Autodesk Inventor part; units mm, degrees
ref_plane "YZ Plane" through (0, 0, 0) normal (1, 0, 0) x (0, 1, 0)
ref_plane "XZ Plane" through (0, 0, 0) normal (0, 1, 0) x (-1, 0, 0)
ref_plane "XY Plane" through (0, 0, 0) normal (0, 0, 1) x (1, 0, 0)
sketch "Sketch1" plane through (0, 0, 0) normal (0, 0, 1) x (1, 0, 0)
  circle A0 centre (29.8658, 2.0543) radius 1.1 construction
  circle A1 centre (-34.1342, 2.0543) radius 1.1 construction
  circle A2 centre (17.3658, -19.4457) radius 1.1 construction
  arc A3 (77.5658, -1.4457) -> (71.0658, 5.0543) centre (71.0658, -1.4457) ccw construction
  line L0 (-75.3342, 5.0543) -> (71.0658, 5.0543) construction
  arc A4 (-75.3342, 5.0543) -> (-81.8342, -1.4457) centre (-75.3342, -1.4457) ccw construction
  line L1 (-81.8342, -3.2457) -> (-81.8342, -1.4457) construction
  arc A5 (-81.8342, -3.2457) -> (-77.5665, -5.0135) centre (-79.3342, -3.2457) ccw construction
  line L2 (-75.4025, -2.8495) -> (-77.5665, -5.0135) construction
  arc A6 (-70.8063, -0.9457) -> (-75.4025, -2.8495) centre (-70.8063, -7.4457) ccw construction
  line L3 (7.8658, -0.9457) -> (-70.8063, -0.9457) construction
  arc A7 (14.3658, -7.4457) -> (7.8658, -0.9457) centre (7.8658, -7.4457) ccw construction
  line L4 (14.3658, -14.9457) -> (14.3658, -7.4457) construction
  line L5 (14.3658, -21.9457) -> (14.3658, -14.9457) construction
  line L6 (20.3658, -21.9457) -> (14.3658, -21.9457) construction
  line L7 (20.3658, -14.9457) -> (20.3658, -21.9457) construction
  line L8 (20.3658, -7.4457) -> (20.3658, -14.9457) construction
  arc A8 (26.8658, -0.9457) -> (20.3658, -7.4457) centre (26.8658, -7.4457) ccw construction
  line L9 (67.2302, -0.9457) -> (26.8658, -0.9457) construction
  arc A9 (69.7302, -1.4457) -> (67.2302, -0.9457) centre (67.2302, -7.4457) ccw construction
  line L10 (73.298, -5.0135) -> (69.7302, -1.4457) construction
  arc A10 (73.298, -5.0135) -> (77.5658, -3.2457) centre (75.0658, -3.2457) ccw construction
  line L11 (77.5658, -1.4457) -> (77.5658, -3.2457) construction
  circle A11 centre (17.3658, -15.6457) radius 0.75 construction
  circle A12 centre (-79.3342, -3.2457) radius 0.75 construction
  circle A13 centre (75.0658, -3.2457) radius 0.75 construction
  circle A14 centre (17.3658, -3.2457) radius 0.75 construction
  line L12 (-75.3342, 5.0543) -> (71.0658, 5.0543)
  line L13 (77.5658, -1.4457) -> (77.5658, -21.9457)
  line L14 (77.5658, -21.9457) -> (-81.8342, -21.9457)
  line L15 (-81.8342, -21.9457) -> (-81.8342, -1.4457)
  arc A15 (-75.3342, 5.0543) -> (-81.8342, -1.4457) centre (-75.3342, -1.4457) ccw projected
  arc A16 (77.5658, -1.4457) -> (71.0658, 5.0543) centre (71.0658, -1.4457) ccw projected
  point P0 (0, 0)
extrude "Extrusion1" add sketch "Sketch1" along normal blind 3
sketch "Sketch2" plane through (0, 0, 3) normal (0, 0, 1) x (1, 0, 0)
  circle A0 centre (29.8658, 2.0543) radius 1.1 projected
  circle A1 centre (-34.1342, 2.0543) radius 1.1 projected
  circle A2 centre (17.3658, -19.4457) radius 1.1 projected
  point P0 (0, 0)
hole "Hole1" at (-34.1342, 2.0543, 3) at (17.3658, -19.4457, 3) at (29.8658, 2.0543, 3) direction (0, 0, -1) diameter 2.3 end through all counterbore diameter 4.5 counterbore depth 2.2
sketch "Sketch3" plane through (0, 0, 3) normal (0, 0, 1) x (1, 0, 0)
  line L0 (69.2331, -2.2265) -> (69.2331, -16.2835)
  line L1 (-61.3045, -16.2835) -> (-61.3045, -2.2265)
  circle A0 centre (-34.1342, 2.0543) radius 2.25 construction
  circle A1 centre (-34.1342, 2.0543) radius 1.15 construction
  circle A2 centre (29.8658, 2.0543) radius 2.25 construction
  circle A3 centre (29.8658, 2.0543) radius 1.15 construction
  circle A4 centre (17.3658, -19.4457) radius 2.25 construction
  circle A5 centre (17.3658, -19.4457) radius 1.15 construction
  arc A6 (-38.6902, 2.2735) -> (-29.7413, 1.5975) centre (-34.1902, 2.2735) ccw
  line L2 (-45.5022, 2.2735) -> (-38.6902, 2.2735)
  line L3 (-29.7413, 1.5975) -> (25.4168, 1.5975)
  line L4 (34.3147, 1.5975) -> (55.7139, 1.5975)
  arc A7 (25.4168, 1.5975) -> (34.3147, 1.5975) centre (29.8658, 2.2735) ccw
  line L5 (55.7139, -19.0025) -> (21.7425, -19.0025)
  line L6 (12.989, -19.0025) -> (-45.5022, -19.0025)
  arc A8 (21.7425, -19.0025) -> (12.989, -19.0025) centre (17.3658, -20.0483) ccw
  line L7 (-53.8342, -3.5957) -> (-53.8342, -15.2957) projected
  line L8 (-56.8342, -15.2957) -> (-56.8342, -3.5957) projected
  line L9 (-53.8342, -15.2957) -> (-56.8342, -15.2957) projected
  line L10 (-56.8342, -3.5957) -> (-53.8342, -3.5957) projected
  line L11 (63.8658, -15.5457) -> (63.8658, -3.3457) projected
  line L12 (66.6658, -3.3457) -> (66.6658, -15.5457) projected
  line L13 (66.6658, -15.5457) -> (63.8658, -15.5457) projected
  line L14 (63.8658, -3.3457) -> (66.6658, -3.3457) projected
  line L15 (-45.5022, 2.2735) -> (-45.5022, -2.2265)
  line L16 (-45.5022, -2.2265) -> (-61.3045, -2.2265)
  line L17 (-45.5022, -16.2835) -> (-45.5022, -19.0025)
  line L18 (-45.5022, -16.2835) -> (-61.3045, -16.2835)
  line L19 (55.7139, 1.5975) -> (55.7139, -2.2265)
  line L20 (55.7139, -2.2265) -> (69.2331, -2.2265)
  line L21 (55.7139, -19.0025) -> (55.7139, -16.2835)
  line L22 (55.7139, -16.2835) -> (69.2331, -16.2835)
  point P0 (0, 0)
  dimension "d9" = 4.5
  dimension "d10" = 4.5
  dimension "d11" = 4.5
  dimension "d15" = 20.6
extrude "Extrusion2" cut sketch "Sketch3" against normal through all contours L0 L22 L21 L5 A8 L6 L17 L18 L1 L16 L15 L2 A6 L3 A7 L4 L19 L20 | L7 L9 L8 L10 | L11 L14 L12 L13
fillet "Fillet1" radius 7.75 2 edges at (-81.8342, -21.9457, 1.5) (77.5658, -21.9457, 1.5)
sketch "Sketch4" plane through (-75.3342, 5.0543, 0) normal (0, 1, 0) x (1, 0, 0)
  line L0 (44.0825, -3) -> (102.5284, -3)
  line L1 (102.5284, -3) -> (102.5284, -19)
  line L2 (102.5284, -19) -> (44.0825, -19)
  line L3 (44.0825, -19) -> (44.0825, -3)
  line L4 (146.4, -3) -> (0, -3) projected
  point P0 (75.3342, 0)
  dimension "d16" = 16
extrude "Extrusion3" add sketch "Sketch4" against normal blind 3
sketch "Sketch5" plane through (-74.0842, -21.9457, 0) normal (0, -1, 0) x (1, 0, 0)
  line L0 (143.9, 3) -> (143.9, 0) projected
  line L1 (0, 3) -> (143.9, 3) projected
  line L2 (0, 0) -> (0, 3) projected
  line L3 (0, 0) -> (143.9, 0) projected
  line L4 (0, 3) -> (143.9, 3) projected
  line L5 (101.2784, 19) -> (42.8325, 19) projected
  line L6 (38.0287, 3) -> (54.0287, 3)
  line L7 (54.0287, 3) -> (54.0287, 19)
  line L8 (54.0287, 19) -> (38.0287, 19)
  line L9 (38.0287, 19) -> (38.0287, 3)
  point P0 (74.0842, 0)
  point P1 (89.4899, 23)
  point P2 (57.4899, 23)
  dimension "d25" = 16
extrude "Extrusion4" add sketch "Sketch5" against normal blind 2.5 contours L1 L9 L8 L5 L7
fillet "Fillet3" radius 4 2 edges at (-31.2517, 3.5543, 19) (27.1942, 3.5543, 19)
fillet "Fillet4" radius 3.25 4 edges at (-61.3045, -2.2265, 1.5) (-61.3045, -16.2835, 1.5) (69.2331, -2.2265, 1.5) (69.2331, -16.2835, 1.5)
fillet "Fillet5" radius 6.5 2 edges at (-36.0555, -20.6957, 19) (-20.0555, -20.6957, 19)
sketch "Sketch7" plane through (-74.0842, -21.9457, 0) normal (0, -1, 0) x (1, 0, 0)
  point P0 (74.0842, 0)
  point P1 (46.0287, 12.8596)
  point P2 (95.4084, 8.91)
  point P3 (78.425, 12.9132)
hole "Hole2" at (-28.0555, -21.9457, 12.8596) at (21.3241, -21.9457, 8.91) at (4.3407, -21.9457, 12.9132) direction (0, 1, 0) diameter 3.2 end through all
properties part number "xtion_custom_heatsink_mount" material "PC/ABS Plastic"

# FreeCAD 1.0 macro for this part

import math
import FreeCAD as App
import Part
import Sketcher
from FreeCAD import Vector
Q = App.Units.Quantity


def edges_at(feature, points):
    """Names of the edges that pass closest to the given points."""
    edges = feature.Shape.Edges
    near = lambda p: min(range(len(edges)), key=lambda i: edges[i].distToShape(Part.Vertex(*p))[0])
    return sorted({f"Edge{near(p) + 1}" for p in points})

doc = App.newDocument("Part")
body = doc.addObject("PartDesign::Body", "Body")

sketch1 = doc.addObject("Sketcher::SketchObject", "Sketch")
body.addObject(sketch1)
sketch1.AttachmentSupport = (doc.XY_Plane, [""])
sketch1.MapMode = "FlatFace"
sketch1.addGeometry(Part.LineSegment(Vector(71, 5, 0), Vector(-75, 5, 0)), False)
sketch1.addGeometry(Part.ArcOfCircle(Part.Circle(Vector(-75, -1, 0), Vector(0, 0, 1), 6), math.radians(90), math.radians(180)), False)
sketch1.addGeometry(Part.LineSegment(Vector(-82, -1, 0), Vector(-82, -22, 0)), False)
sketch1.addGeometry(Part.LineSegment(Vector(-82, -22, 0), Vector(78, -22, 0)), False)
sketch1.addGeometry(Part.LineSegment(Vector(78, -22, 0), Vector(78, -1, 0)), False)
sketch1.addGeometry(Part.ArcOfCircle(Part.Circle(Vector(71, -1, 0), Vector(0, 0, 1), 6), math.radians(0), math.radians(90)), False)
sketch1.addConstraint(Sketcher.Constraint("Tangent", 0, 2, 1, 1))
sketch1.addConstraint(Sketcher.Constraint("Tangent", 1, 2, 2, 1))
sketch1.addConstraint(Sketcher.Constraint("Coincident", 2, 2, 3, 1))
sketch1.addConstraint(Sketcher.Constraint("Coincident", 3, 2, 4, 1))
sketch1.addConstraint(Sketcher.Constraint("Tangent", 4, 2, 5, 1))
sketch1.addConstraint(Sketcher.Constraint("Tangent", 5, 2, 0, 1))
sketch1.addConstraint(Sketcher.Constraint("Horizontal", 0))
sketch1.addConstraint(Sketcher.Constraint("Vertical", 2))
sketch1.addConstraint(Sketcher.Constraint("Horizontal", 3))
sketch1.addConstraint(Sketcher.Constraint("Vertical", 4))
sketch1.addConstraint(Sketcher.Constraint("Equal", 1, 5))
sketch1.addConstraint(Sketcher.Constraint("Radius", 1, Q("6.5 mm")))
sketch1.addConstraint(Sketcher.Constraint("DistanceX", 0, 2, 0, 1, Q("146.4 mm")))
sketch1.addConstraint(Sketcher.Constraint("DistanceY", 2, 2, 2, 1, Q("20.5 mm")))
sketch1.addConstraint(Sketcher.Constraint("DistanceX", 1, 3, -1, 1, Q("75.3342 mm")))
sketch1.addConstraint(Sketcher.Constraint("DistanceY", 1, 3, -1, 1, Q("1.4457 mm")))
pad1 = doc.addObject("PartDesign::Pad", "Pad")
body.addObject(pad1)
pad1.Profile = sketch1
pad1.Length = 3

sketch2 = doc.addObject("Sketcher::SketchObject", "Sketch001")
body.addObject(sketch2)
sketch2.AttachmentSupport = (doc.XY_Plane, [""])
sketch2.MapMode = "FlatFace"
sketch2.AttachmentOffset = App.Placement(Vector(0, 0, 3), App.Rotation())
sketch2.addGeometry(Part.Circle(Vector(-34.1, 2.1, 0), Vector(0, 0, 1), 1.1), False)
sketch2.addGeometry(Part.Circle(Vector(17.4, -19.4, 0), Vector(0, 0, 1), 1.1), False)
sketch2.addGeometry(Part.Circle(Vector(29.9, 2.1, 0), Vector(0, 0, 1), 1.1), False)
sketch2.addConstraint(Sketcher.Constraint("Equal", 0, 1))
sketch2.addConstraint(Sketcher.Constraint("Equal", 1, 2))
sketch2.addConstraint(Sketcher.Constraint("Horizontal", 0, 3, 2, 3))
sketch2.addConstraint(Sketcher.Constraint("Diameter", 0, Q("2.3 mm")))
sketch2.addConstraint(Sketcher.Constraint("DistanceX", 0, 3, 2, 3, Q("64 mm")))
sketch2.addConstraint(Sketcher.Constraint("DistanceX", 0, 3, 1, 3, Q("51.5 mm")))
sketch2.addConstraint(Sketcher.Constraint("DistanceY", 1, 3, 0, 3, Q("21.5 mm")))
sketch2.addConstraint(Sketcher.Constraint("DistanceX", 0, 3, -1, 1, Q("34.1342 mm")))
sketch2.addConstraint(Sketcher.Constraint("DistanceY", -1, 1, 0, 3, Q("2.0543 mm")))
doc.recompute()
hole = doc.addObject("PartDesign::Hole", "Hole")
body.addObject(hole)
hole.Profile = sketch2
hole.ThreadType = "None"
hole.Diameter = 2.3
hole.DepthType = "ThroughAll"
hole.HoleCutType = "Counterbore"
hole.HoleCutDiameter = 4.5
hole.HoleCutDepth = 2.2

sketch3 = doc.addObject("Sketcher::SketchObject", "Sketch002")
body.addObject(sketch3)
sketch3.AttachmentSupport = (doc.XY_Plane, [""])
sketch3.MapMode = "FlatFace"
sketch3.AttachmentOffset = App.Placement(Vector(0, 0, 3), App.Rotation())
sketch3.addGeometry(Part.LineSegment(Vector(69.2, -16.3, 0), Vector(69.2, -2.2, 0)), False)
sketch3.addGeometry(Part.LineSegment(Vector(69.2, -2.2, 0), Vector(55.7, -2.2, 0)), False)
sketch3.addGeometry(Part.LineSegment(Vector(55.7, -2.2, 0), Vector(55.7, 1.6, 0)), False)
sketch3.addGeometry(Part.LineSegment(Vector(55.7, 1.6, 0), Vector(34.3, 1.6, 0)), False)
sketch3.addGeometry(Part.ArcOfCircle(Part.Circle(Vector(29.9, 2.3, 0), Vector(0, 0, 1), 4.5), math.radians(-171), math.radians(-9)), False)
sketch3.addGeometry(Part.LineSegment(Vector(25.4, 1.6, 0), Vector(-29.7, 1.6, 0)), False)
sketch3.addGeometry(Part.ArcOfCircle(Part.Circle(Vector(-34.2, 2.3, 0), Vector(0, 0, 1), 4.5), math.radians(180), math.radians(351)), False)
sketch3.addGeometry(Part.LineSegment(Vector(-38.7, 2.3, 0), Vector(-45.5, 2.3, 0)), False)
sketch3.addGeometry(Part.LineSegment(Vector(-45.5, 2.3, 0), Vector(-45.5, -2.2, 0)), False)
sketch3.addGeometry(Part.LineSegment(Vector(-45.5, -2.2, 0), Vector(-61.3, -2.2, 0)), False)
sketch3.addGeometry(Part.LineSegment(Vector(-61.3, -2.2, 0), Vector(-61.3, -16.3, 0)), False)
sketch3.addGeometry(Part.LineSegment(Vector(-61.3, -16.3, 0), Vector(-45.5, -16.3, 0)), False)
sketch3.addGeometry(Part.LineSegment(Vector(-45.5, -16.3, 0), Vector(-45.5, -19, 0)), False)
sketch3.addGeometry(Part.LineSegment(Vector(-45.5, -19, 0), Vector(13, -19, 0)), False)
sketch3.addGeometry(Part.ArcOfCircle(Part.Circle(Vector(17.4, -20, 0), Vector(0, 0, 1), 4.5), math.radians(13), math.radians(167)), False)
sketch3.addGeometry(Part.LineSegment(Vector(21.7, -19, 0), Vector(55.7, -19, 0)), False)
sketch3.addGeometry(Part.LineSegment(Vector(55.7, -19, 0), Vector(55.7, -16.3, 0)), False)
sketch3.addGeometry(Part.LineSegment(Vector(55.7, -16.3, 0), Vector(69.2, -16.3, 0)), False)
sketch3.addConstraint(Sketcher.Constraint("Coincident", 0, 2, 1, 1))
sketch3.addConstraint(Sketcher.Constraint("Coincident", 1, 2, 2, 1))
sketch3.addConstraint(Sketcher.Constraint("Coincident", 2, 2, 3, 1))
sketch3.addConstraint(Sketcher.Constraint("Coincident", 3, 2, 4, 2))
sketch3.addConstraint(Sketcher.Constraint("Coincident", 4, 1, 5, 1))
sketch3.addConstraint(Sketcher.Constraint("Coincident", 5, 2, 6, 2))
sketch3.addConstraint(Sketcher.Constraint("Coincident", 6, 1, 7, 1))
sketch3.addConstraint(Sketcher.Constraint("Coincident", 7, 2, 8, 1))
sketch3.addConstraint(Sketcher.Constraint("Coincident", 8, 2, 9, 1))
sketch3.addConstraint(Sketcher.Constraint("Coincident", 9, 2, 10, 1))
sketch3.addConstraint(Sketcher.Constraint("Coincident", 10, 2, 11, 1))
sketch3.addConstraint(Sketcher.Constraint("Coincident", 11, 2, 12, 1))
sketch3.addConstraint(Sketcher.Constraint("Coincident", 12, 2, 13, 1))
sketch3.addConstraint(Sketcher.Constraint("Coincident", 13, 2, 14, 2))
sketch3.addConstraint(Sketcher.Constraint("Coincident", 14, 1, 15, 1))
sketch3.addConstraint(Sketcher.Constraint("Coincident", 15, 2, 16, 1))
sketch3.addConstraint(Sketcher.Constraint("Coincident", 16, 2, 17, 1))
sketch3.addConstraint(Sketcher.Constraint("Coincident", 17, 2, 0, 1))
sketch3.addConstraint(Sketcher.Constraint("Vertical", 0))
sketch3.addConstraint(Sketcher.Constraint("Horizontal", 1))
sketch3.addConstraint(Sketcher.Constraint("Vertical", 2))
sketch3.addConstraint(Sketcher.Constraint("Horizontal", 3))
sketch3.addConstraint(Sketcher.Constraint("Horizontal", 5))
sketch3.addConstraint(Sketcher.Constraint("Horizontal", 7))
sketch3.addConstraint(Sketcher.Constraint("Vertical", 8))
sketch3.addConstraint(Sketcher.Constraint("Horizontal", 9))
sketch3.addConstraint(Sketcher.Constraint("Vertical", 10))
sketch3.addConstraint(Sketcher.Constraint("Horizontal", 11))
sketch3.addConstraint(Sketcher.Constraint("Vertical", 12))
sketch3.addConstraint(Sketcher.Constraint("Horizontal", 13))
sketch3.addConstraint(Sketcher.Constraint("Horizontal", 15))
sketch3.addConstraint(Sketcher.Constraint("Vertical", 16))
sketch3.addConstraint(Sketcher.Constraint("Horizontal", 17))
sketch3.addConstraint(Sketcher.Constraint("Equal", 4, 6))
sketch3.addConstraint(Sketcher.Constraint("Equal", 6, 14))
sketch3.addConstraint(Sketcher.Constraint("Horizontal", 4, 3, 6, 3))
sketch3.addConstraint(Sketcher.Constraint("Horizontal", 3, 2, 4, 1))
sketch3.addConstraint(Sketcher.Constraint("Horizontal", 4, 3, 6, 1))
sketch3.addConstraint(Sketcher.Constraint("Horizontal", 1, 2, 8, 2))
sketch3.addConstraint(Sketcher.Constraint("Horizontal", 13, 2, 14, 1))
sketch3.addConstraint(Sketcher.Constraint("Horizontal", 11, 2, 16, 2))
sketch3.addConstraint(Sketcher.Constraint("Vertical", 8, 2, 11, 2))
sketch3.addConstraint(Sketcher.Constraint("Vertical", 2, 2, 15, 2))
sketch3.addConstraint(Sketcher.Constraint("Radius", 4, Q("4.5 mm")))
sketch3.addConstraint(Sketcher.Constraint("DistanceY", 8, 2, 8, 1, Q("4.5 mm")))
sketch3.addConstraint(Sketcher.Constraint("DistanceY", 13, 2, 4, 1, Q("20.6 mm")))
sketch3.addConstraint(Sketcher.Constraint("DistanceX", 14, 3, 4, 3, Q("12.5 mm")))
sketch3.addConstraint(Sketcher.Constraint("DistanceX", 5, 2, 5, 1, Q("55.158 mm")))
sketch3.addConstraint(Sketcher.Constraint("DistanceX", 7, 2, 7, 1, Q("6.812 mm")))
sketch3.addConstraint(Sketcher.Constraint("DistanceY", 0, 1, 0, 2, Q("14.057 mm")))
sketch3.addConstraint(Sketcher.Constraint("DistanceY", 2, 1, 2, 2, Q("3.824 mm")))
sketch3.addConstraint(Sketcher.Constraint("DistanceX", 1, 2, 1, 1, Q("13.5192 mm")))
sketch3.addConstraint(Sketcher.Constraint("DistanceX", 3, 2, 3, 1, Q("21.3992 mm")))
sketch3.addConstraint(Sketcher.Constraint("DistanceX", 9, 2, 9, 1, Q("15.8023 mm")))
sketch3.addConstraint(Sketcher.Constraint("DistanceX", 13, 1, 13, 2, Q("58.4912 mm")))
sketch3.addConstraint(Sketcher.Constraint("DistanceX", -1, 1, 0, 2, Q("69.233 mm")))
sketch3.addConstraint(Sketcher.Constraint("DistanceY", -1, 1, 4, 3, Q("2.2735 mm")))
pocket1 = doc.addObject("PartDesign::Pocket", "Pocket")
body.addObject(pocket1)
pocket1.Profile = sketch3
pocket1.Type = "ThroughAll"
doc.recompute()

fillet = doc.addObject("PartDesign::Fillet", "Fillet")
body.addObject(fillet)
fillet.Base = (pocket1, edges_at(pocket1, [(-81.834, -21.946, 1.5), (77.566, -21.946, 1.5)]))
fillet.Radius = 7.75

sketch4 = doc.addObject("Sketcher::SketchObject", "Sketch003")
body.addObject(sketch4)
sketch4.AttachmentSupport = (doc.XZ_Plane, [""])
sketch4.MapMode = "FlatFace"
sketch4.AttachmentOffset = App.Placement(Vector(0, 0, -5.0543), App.Rotation())
sketch4.addGeometry(Part.LineSegment(Vector(27, 3, 0), Vector(-31, 3, 0)), False)
sketch4.addGeometry(Part.LineSegment(Vector(-31, 3, 0), Vector(-31, 19, 0)), False)
sketch4.addGeometry(Part.LineSegment(Vector(-31, 19, 0), Vector(27, 19, 0)), False)
sketch4.addGeometry(Part.LineSegment(Vector(27, 19, 0), Vector(27, 3, 0)), False)
sketch4.addConstraint(Sketcher.Constraint("Coincident", 0, 2, 1, 1))
sketch4.addConstraint(Sketcher.Constraint("Coincident", 1, 2, 2, 1))
sketch4.addConstraint(Sketcher.Constraint("Coincident", 2, 2, 3, 1))
sketch4.addConstraint(Sketcher.Constraint("Coincident", 3, 2, 0, 1))
sketch4.addConstraint(Sketcher.Constraint("Horizontal", 0))
sketch4.addConstraint(Sketcher.Constraint("Vertical", 1))
sketch4.addConstraint(Sketcher.Constraint("Horizontal", 2))
sketch4.addConstraint(Sketcher.Constraint("Vertical", 3))
sketch4.addConstraint(Sketcher.Constraint("DistanceY", 1, 1, 1, 2, Q("16 mm")))
sketch4.addConstraint(Sketcher.Constraint("DistanceY", -1, 1, 0, 2, Q("3 mm")))
sketch4.addConstraint(Sketcher.Constraint("DistanceX", 0, 2, 0, 1, Q("58.446 mm")))
sketch4.addConstraint(Sketcher.Constraint("DistanceX", 0, 2, -1, 1, Q("31.2517 mm")))
pad2 = doc.addObject("PartDesign::Pad", "Pad001")
body.addObject(pad2)
pad2.Profile = sketch4
pad2.Length = 3

sketch5 = doc.addObject("Sketcher::SketchObject", "Sketch004")
body.addObject(sketch5)
sketch5.AttachmentSupport = (doc.XZ_Plane, [""])
sketch5.MapMode = "FlatFace"
sketch5.AttachmentOffset = App.Placement(Vector(0, 0, 21.9457), App.Rotation())
sketch5.addGeometry(Part.LineSegment(Vector(-36, 3, 0), Vector(-20, 3, 0)), False)
sketch5.addGeometry(Part.LineSegment(Vector(-20, 3, 0), Vector(-20, 19, 0)), False)
sketch5.addGeometry(Part.LineSegment(Vector(-20, 19, 0), Vector(-36, 19, 0)), False)
sketch5.addGeometry(Part.LineSegment(Vector(-36, 19, 0), Vector(-36, 3, 0)), False)
sketch5.addConstraint(Sketcher.Constraint("Coincident", 0, 2, 1, 1))
sketch5.addConstraint(Sketcher.Constraint("Coincident", 1, 2, 2, 1))
sketch5.addConstraint(Sketcher.Constraint("Coincident", 2, 2, 3, 1))
sketch5.addConstraint(Sketcher.Constraint("Coincident", 3, 2, 0, 1))
sketch5.addConstraint(Sketcher.Constraint("Horizontal", 0))
sketch5.addConstraint(Sketcher.Constraint("Vertical", 1))
sketch5.addConstraint(Sketcher.Constraint("Horizontal", 2))
sketch5.addConstraint(Sketcher.Constraint("Vertical", 3))
sketch5.addConstraint(Sketcher.Constraint("Equal", 2, 1))
sketch5.addConstraint(Sketcher.Constraint("DistanceX", 0, 1, 0, 2, Q("16 mm")))
sketch5.addConstraint(Sketcher.Constraint("DistanceY", -1, 1, 0, 2, Q("3 mm")))
sketch5.addConstraint(Sketcher.Constraint("DistanceX", 0, 2, -1, 1, Q("20.0555 mm")))
pad3 = doc.addObject("PartDesign::Pad", "Pad002")
body.addObject(pad3)
pad3.Profile = sketch5
pad3.Length = 2.5
pad3.Reversed = True
doc.recompute()

fillet2 = doc.addObject("PartDesign::Fillet", "Fillet001")
body.addObject(fillet2)
fillet2.Base = (pad3, edges_at(pad3, [(-31.252, 3.554, 19), (27.194, 3.554, 19)]))
fillet2.Radius = 4
doc.recompute()

fillet3 = doc.addObject("PartDesign::Fillet", "Fillet002")
body.addObject(fillet3)
fillet3.Base = (fillet2, edges_at(fillet2, [
    (-61.304, -2.227, 1.5),
    (-61.304, -16.284, 1.5),
    (69.233, -2.227, 1.5),
    (69.233, -16.284, 1.5),
]))
fillet3.Radius = 3.25
doc.recompute()

fillet4 = doc.addObject("PartDesign::Fillet", "Fillet003")
body.addObject(fillet4)
fillet4.Base = (fillet3, edges_at(fillet3, [(-36.056, -20.696, 19), (-20.055, -20.696, 19)]))
fillet4.Radius = 6.5

sketch6 = doc.addObject("Sketcher::SketchObject", "Sketch005")
body.addObject(sketch6)
sketch6.AttachmentSupport = (doc.XZ_Plane, [""])
sketch6.MapMode = "FlatFace"
sketch6.AttachmentOffset = App.Placement(Vector(0, 0, 21.9457), App.Rotation())
sketch6.addGeometry(Part.Circle(Vector(-28.1, 12.9, 0), Vector(0, 0, 1), 1.6), False)
sketch6.addGeometry(Part.Circle(Vector(21.3, 8.9, 0), Vector(0, 0, 1), 1.6), False)
sketch6.addGeometry(Part.Circle(Vector(4.3, 12.9, 0), Vector(0, 0, 1), 1.6), False)
sketch6.addConstraint(Sketcher.Constraint("Equal", 0, 1))
sketch6.addConstraint(Sketcher.Constraint("Equal", 1, 2))
sketch6.addConstraint(Sketcher.Constraint("Diameter", 0, Q("3.2 mm")))
sketch6.addConstraint(Sketcher.Constraint("DistanceY", -1, 1, 1, 3, Q("8.91 mm")))
sketch6.addConstraint(Sketcher.Constraint("DistanceX", -1, 1, 1, 3, Q("21.324 mm")))
sketch6.addConstraint(Sketcher.Constraint("DistanceX", 0, 3, -1, 1, Q("28.0555 mm")))
sketch6.addConstraint(Sketcher.Constraint("DistanceY", -1, 1, 0, 3, Q("12.8596 mm")))
sketch6.addConstraint(Sketcher.Constraint("DistanceX", -1, 1, 2, 3, Q("4.3407 mm")))
sketch6.addConstraint(Sketcher.Constraint("DistanceY", -1, 1, 2, 3, Q("12.9132 mm")))
doc.recompute()
hole2 = doc.addObject("PartDesign::Hole", "Hole001")
body.addObject(hole2)
hole2.Profile = sketch6
hole2.ThreadType = "None"
hole2.Diameter = 3.2
hole2.DepthType = "ThroughAll"

doc.recompute()
